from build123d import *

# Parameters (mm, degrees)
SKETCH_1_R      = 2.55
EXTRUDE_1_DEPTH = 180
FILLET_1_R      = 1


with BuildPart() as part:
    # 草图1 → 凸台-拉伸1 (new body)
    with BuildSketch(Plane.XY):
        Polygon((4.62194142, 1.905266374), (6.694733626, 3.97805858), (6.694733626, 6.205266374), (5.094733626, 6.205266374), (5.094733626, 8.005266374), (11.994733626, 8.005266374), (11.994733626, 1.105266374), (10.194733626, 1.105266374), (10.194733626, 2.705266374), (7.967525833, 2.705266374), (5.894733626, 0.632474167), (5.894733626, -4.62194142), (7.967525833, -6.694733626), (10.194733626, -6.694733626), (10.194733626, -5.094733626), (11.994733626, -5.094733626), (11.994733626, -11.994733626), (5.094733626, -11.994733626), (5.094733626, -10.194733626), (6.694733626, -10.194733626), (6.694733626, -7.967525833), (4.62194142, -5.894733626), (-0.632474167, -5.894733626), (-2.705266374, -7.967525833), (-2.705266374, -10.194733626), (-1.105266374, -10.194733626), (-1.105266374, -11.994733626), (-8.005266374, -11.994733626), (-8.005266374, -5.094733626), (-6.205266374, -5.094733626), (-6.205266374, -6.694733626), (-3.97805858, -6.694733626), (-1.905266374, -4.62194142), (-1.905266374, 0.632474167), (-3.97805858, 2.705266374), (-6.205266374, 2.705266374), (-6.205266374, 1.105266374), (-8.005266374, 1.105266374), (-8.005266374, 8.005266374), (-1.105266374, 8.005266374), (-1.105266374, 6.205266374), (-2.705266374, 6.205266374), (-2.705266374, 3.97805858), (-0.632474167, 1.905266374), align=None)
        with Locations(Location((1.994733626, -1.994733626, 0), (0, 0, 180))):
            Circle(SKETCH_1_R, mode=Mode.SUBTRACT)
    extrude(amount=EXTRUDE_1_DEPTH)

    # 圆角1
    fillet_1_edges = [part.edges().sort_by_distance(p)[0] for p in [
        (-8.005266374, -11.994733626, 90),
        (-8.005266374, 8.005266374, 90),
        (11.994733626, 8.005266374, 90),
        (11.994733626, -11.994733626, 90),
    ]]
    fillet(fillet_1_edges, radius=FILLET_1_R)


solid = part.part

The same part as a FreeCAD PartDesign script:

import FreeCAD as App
import Part
import Sketcher
from FreeCAD import Vector


def edges_at(feature, points):
    """Names of the edges that pass closest to the given points."""
    edges = feature.Shape.Edges
    near = lambda p: min(range(len(edges)), key=lambda i: edges[i].distToShape(Part.Vertex(*p))[0])
    return sorted({f"Edge{near(p) + 1}" for p in points})


def add_polygon(sketch, points):
    """Adds a closed chain of lines whose ends are joined by coincident constraints."""
    first, n = sketch.GeometryCount, len(points)
    for a, b in zip(points, points[1:] + points[:1]):
        sketch.addGeometry(Part.LineSegment(App.Vector(*a, 0), App.Vector(*b, 0)), False)
    for i in range(n):
        sketch.addConstraint(Sketcher.Constraint("Coincident", first + i, 2, first + (i + 1) % n, 1))

doc = App.newDocument("Part")
body = doc.addObject("PartDesign::Body", "Body")

# Sketch on XY plane
sketch1 = body.newObject("Sketcher::SketchObject", "Sketch")
sketch1.AttachmentSupport = (doc.getObject("XY_Plane"), [""])
sketch1.MapMode = "FlatFace"
add_polygon(sketch1, [(6.7, 4), (4.6, 1.9), (-0.6, 1.9), (-2.7, 4), (-2.7, 6.2), (-1.1, 6.2), (-1.1, 8), (-8, 8), (-8, 1.1), (-6.2, 1.1), (-6.2, 2.7), (-4, 2.7), (-1.9, 0.6), (-1.9, -4.6), (-4, -6.7), (-6.2, -6.7), (-6.2, -5.1), (-8, -5.1), (-8, -12), (-1.1, -12), (-1.1, -10.2), (-2.7, -10.2), (-2.7, -8), (-0.6, -5.9), (4.6, -5.9), (6.7, -8), (6.7, -10.2), (5.1, -10.2), (5.1, -12), (12, -12), (12, -5.1), (10.2, -5.1), (10.2, -6.7), (8, -6.7), (5.9, -4.6), (5.9, 0.6), (8, 2.7), (10.2, 2.7), (10.2, 1.1), (12, 1.1), (12, 8), (5.1, 8), (5.1, 6.2), (6.7, 6.2)])  # lines 0-43
sketch1.addGeometry(Part.Circle(Vector(2, -2, 0), Vector(0, 0, 1), 2.5), False)  # 44
sketch1.addConstraint(Sketcher.Constraint("Horizontal", 1))
sketch1.addConstraint(Sketcher.Constraint("Vertical", 3))
sketch1.addConstraint(Sketcher.Constraint("Horizontal", 4))
sketch1.addConstraint(Sketcher.Constraint("Vertical", 5))
sketch1.addConstraint(Sketcher.Constraint("Horizontal", 6))
sketch1.addConstraint(Sketcher.Constraint("Vertical", 7))
sketch1.addConstraint(Sketcher.Constraint("Horizontal", 8))
sketch1.addConstraint(Sketcher.Constraint("Vertical", 9))
sketch1.addConstraint(Sketcher.Constraint("Horizontal", 10))
sketch1.addConstraint(Sketcher.Constraint("Vertical", 12))
sketch1.addConstraint(Sketcher.Constraint("Horizontal", 14))
sketch1.addConstraint(Sketcher.Constraint("Vertical", 15))
sketch1.addConstraint(Sketcher.Constraint("Horizontal", 16))
sketch1.addConstraint(Sketcher.Constraint("Vertical", 17))
sketch1.addConstraint(Sketcher.Constraint("Horizontal", 18))
sketch1.addConstraint(Sketcher.Constraint("Vertical", 19))
sketch1.addConstraint(Sketcher.Constraint("Horizontal", 20))
sketch1.addConstraint(Sketcher.Constraint("Vertical", 21))
sketch1.addConstraint(Sketcher.Constraint("Horizontal", 23))
sketch1.addConstraint(Sketcher.Constraint("Vertical", 25))
sketch1.addConstraint(Sketcher.Constraint("Horizontal", 26))
sketch1.addConstraint(Sketcher.Constraint("Vertical", 27))
sketch1.addConstraint(Sketcher.Constraint("Horizontal", 28))
sketch1.addConstraint(Sketcher.Constraint("Vertical", 29))
sketch1.addConstraint(Sketcher.Constraint("Horizontal", 30))
sketch1.addConstraint(Sketcher.Constraint("Vertical", 31))
sketch1.addConstraint(Sketcher.Constraint("Horizontal", 32))
sketch1.addConstraint(Sketcher.Constraint("Vertical", 34))
sketch1.addConstraint(Sketcher.Constraint("Horizontal", 36))
sketch1.addConstraint(Sketcher.Constraint("Vertical", 37))
sketch1.addConstraint(Sketcher.Constraint("Horizontal", 38))
sketch1.addConstraint(Sketcher.Constraint("Vertical", 39))
sketch1.addConstraint(Sketcher.Constraint("Horizontal", 40))
sketch1.addConstraint(Sketcher.Constraint("Vertical", 41))
sketch1.addConstraint(Sketcher.Constraint("Horizontal", 42))
sketch1.addConstraint(Sketcher.Constraint("Vertical", 43))
sketch1.addConstraint(Sketcher.Constraint("Perpendicular", 0, 2))
sketch1.addConstraint(Sketcher.Constraint("Parallel", 2, 11))
sketch1.addConstraint(Sketcher.Constraint("Perpendicular", 11, 13))
sketch1.addConstraint(Sketcher.Constraint("Parallel", 13, 22))
sketch1.addConstraint(Sketcher.Constraint("Perpendicular", 22, 24))
sketch1.addConstraint(Sketcher.Constraint("Parallel", 24, 33))
sketch1.addConstraint(Sketcher.Constraint("Perpendicular", 33, 35))
sketch1.addConstraint(Sketcher.Constraint("Horizontal", 21, 2, 24, 2))
sketch1.addConstraint(Sketcher.Constraint("Horizontal", 20, 2, 25, 2))
sketch1.addConstraint(Sketcher.Constraint("Horizontal", 18, 2, 27, 2))
sketch1.addConstraint(Sketcher.Constraint("Horizontal", 16, 2, 29, 2))
sketch1.addConstraint(Sketcher.Constraint("Horizontal", 14, 2, 31, 2))
sketch1.addConstraint(Sketcher.Constraint("Horizontal", 12, 2, 33, 2))
sketch1.addConstraint(Sketcher.Constraint("Horizontal", 11, 2, 34, 2))
sketch1.addConstraint(Sketcher.Constraint("Horizontal", 10, 2, 35, 2))
sketch1.addConstraint(Sketcher.Constraint("Horizontal", 8, 2, 37, 2))
sketch1.addConstraint(Sketcher.Constraint("Horizontal", 6, 2, 39, 2))
sketch1.addConstraint(Sketcher.Constraint("Horizontal", 4, 2, 41, 2))
sketch1.addConstraint(Sketcher.Constraint("Horizontal", 2, 2, 43, 2))
sketch1.addConstraint(Sketcher.Constraint("Vertical", 10, 2, 13, 2))
sketch1.addConstraint(Sketcher.Constraint("Vertical", 9, 2, 14, 2))
sketch1.addConstraint(Sketcher.Constraint("Vertical", 7, 2, 16, 2))
sketch1.addConstraint(Sketcher.Constraint("Vertical", 5, 2, 18, 2))
sketch1.addConstraint(Sketcher.Constraint("Vertical", 3, 2, 20, 2))
sketch1.addConstraint(Sketcher.Constraint("Vertical", 1, 2, 22, 2))
sketch1.addConstraint(Sketcher.Constraint("Vertical", 0, 2, 23, 2))
sketch1.addConstraint(Sketcher.Constraint("Vertical", 32, 2, 35, 2))
sketch1.addConstraint(Sketcher.Constraint("Vertical", 31, 2, 36, 2))
sketch1.addConstraint(Sketcher.Constraint("Vertical", 29, 2, 38, 2))
sketch1.addConstraint(Sketcher.Constraint("Vertical", 27, 2, 40, 2))
sketch1.addConstraint(Sketcher.Constraint("Equal", 20, 26))
sketch1.addConstraint(Sketcher.Constraint("Equal", 18, 28))
sketch1.addConstraint(Sketcher.Constraint("Equal", 16, 30))
sketch1.addConstraint(Sketcher.Constraint("Equal", 14, 32))
sketch1.addConstraint(Sketcher.Constraint("Equal", 36, 3))
sketch1.addConstraint(Sketcher.Constraint("Equal", 38, 5))
sketch1.addConstraint(Sketcher.Constraint("Equal", 40, 7))
sketch1.addConstraint(Sketcher.Constraint("Equal", 42, 9))
sketch1.addConstraint(Sketcher.Constraint("Equal", 23, 12))
sketch1.addConstraint(Sketcher.Constraint("Equal", 9, 15))
sketch1.addConstraint(Sketcher.Constraint("Equal", 7, 17))
sketch1.addConstraint(Sketcher.Constraint("Equal", 5, 19))
sketch1.addConstraint(Sketcher.Constraint("Equal", 3, 21))
sketch1.addConstraint(Sketcher.Constraint("Equal", 2, 11))
sketch1.addConstraint(Sketcher.Constraint("Diameter", 44, 5.1))
sketch1.addConstraint(Sketcher.Constraint("DistanceX", 4, 1, 4, 2, 1.6))
sketch1.addConstraint(Sketcher.Constraint("DistanceX", 6, 2, 6, 1, 6.9))
sketch1.addConstraint(Sketcher.Constraint("DistanceX", 8, 1, 8, 2, 1.8))
sketch1.addConstraint(Sketcher.Constraint("DistanceY", 44, 3, 0, 2, 3.9))
sketch1.addConstraint(Sketcher.Constraint("DistanceX", 2, 2, 44, 3, 4.7))
sketch1.addConstraint(Sketcher.Constraint("DistanceY", 1, 2, 3, 2, 4.3))
sketch1.addConstraint(Sketcher.Constraint("DistanceY", 13, 2, 44, 3, 4.7))
sketch1.addConstraint(Sketcher.Constraint("Distance", 0, 2.931371))
sketch1.addConstraint(Sketcher.Constraint("DistanceX", -1, 1, 0, 2, 4.621941))
sketch1.addConstraint(Sketcher.Constraint("DistanceY", -1, 1, 2, 2, 3.978059))
pad1 = body.newObject("PartDesign::Pad", "Pad")
pad1.Profile = sketch1
pad1.Length = 180
doc.recompute()

fillet = body.newObject("PartDesign::Fillet", "Fillet")
fillet.Base = (pad1, edges_at(pad1, [
    (-8.005, -11.995, 90),
    (-8.005, 8.005, 90),
    (11.995, 8.005, 90),
    (11.995, -11.995, 90),
]))
fillet.Radius = 1

doc.recompute()
